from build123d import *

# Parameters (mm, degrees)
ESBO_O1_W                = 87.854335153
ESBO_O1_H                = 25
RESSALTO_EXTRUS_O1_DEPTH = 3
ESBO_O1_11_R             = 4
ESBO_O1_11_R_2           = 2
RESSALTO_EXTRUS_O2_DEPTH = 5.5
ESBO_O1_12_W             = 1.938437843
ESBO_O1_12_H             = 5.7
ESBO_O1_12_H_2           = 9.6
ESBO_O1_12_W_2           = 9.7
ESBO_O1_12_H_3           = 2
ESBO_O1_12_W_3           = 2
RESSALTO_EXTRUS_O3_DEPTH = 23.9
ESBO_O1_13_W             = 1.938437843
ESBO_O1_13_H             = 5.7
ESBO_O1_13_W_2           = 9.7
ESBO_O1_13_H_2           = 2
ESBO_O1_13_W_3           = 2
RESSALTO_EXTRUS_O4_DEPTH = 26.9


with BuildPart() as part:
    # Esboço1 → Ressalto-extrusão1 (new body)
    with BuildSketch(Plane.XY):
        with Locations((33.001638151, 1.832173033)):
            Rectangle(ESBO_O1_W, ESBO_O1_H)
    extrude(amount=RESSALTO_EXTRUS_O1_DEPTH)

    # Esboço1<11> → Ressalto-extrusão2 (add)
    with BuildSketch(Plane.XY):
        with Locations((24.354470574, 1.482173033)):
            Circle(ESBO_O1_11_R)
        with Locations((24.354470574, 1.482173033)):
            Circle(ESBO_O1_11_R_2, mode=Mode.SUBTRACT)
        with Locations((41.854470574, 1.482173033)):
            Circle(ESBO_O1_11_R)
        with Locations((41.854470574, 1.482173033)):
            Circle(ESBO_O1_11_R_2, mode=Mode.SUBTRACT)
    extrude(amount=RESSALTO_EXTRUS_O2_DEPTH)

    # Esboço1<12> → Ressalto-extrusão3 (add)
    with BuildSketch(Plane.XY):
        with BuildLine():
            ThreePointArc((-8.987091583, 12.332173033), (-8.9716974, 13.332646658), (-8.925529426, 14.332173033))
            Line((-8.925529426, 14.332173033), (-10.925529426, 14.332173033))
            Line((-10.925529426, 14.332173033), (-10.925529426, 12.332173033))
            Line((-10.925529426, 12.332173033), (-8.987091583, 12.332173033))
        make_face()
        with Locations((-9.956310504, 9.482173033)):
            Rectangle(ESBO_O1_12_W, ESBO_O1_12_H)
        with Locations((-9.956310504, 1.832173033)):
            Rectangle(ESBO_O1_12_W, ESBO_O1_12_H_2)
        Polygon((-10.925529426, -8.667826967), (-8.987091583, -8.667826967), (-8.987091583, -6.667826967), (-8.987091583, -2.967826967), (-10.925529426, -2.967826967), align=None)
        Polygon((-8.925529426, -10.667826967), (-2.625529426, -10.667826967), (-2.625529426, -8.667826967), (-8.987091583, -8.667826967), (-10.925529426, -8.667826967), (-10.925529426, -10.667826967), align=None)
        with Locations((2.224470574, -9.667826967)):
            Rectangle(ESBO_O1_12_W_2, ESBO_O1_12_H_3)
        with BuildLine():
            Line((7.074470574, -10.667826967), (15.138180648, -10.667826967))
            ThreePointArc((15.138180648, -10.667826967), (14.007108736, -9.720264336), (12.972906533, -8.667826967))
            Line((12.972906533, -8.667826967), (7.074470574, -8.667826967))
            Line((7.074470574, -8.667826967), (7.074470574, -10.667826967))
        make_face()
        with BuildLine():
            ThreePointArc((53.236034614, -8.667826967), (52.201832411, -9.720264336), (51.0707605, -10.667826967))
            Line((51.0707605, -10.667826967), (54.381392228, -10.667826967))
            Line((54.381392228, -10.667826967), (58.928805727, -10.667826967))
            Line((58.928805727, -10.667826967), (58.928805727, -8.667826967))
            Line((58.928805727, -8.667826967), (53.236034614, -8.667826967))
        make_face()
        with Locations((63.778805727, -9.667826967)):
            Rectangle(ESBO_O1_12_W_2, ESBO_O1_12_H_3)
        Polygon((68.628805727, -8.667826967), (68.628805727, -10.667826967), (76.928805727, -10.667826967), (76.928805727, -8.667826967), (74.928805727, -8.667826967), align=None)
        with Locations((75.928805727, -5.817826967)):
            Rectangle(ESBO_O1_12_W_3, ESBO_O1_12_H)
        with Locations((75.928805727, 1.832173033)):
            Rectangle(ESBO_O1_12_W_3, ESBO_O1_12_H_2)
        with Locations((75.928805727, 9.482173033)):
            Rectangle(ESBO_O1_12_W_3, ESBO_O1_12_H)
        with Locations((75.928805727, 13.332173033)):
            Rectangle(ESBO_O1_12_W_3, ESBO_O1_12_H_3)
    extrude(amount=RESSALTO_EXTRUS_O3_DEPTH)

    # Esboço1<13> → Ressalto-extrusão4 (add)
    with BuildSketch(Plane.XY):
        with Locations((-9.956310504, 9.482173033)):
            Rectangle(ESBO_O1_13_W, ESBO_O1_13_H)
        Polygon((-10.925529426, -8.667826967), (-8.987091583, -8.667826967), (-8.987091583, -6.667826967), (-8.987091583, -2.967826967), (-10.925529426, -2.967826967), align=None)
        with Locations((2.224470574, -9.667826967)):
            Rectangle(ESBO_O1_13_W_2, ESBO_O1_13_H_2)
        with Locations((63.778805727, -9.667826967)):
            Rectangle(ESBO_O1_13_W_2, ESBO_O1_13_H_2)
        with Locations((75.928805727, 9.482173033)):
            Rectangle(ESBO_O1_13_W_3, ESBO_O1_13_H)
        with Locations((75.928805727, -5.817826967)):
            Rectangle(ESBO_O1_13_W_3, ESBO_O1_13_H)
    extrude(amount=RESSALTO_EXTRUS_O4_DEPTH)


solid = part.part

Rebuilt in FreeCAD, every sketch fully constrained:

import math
import FreeCAD as App
import Part
import Sketcher
from FreeCAD import Vector

doc = App.newDocument("Part")
body = doc.addObject("PartDesign::Body", "Body")

sketch1 = body.newObject("Sketcher::SketchObject", "Sketch")
sketch1.AttachmentSupport = (doc.getObject("XY_Plane"), [""])
sketch1.MapMode = "FlatFace"
sketch1.addGeometry(Part.LineSegment(Vector(-11, 14, 0), Vector(-11, -11, 0)), False)
sketch1.addGeometry(Part.LineSegment(Vector(-11, -11, 0), Vector(77, -11, 0)), False)
sketch1.addGeometry(Part.LineSegment(Vector(77, -11, 0), Vector(77, 14, 0)), False)
sketch1.addGeometry(Part.LineSegment(Vector(77, 14, 0), Vector(-11, 14, 0)), False)
sketch1.addConstraint(Sketcher.Constraint("Coincident", 0, 2, 1, 1))
sketch1.addConstraint(Sketcher.Constraint("Coincident", 1, 2, 2, 1))
sketch1.addConstraint(Sketcher.Constraint("Coincident", 2, 2, 3, 1))
sketch1.addConstraint(Sketcher.Constraint("Coincident", 3, 2, 0, 1))
sketch1.addConstraint(Sketcher.Constraint("Vertical", 0))
sketch1.addConstraint(Sketcher.Constraint("Horizontal", 1))
sketch1.addConstraint(Sketcher.Constraint("Vertical", 2))
sketch1.addConstraint(Sketcher.Constraint("Horizontal", 3))
sketch1.addConstraint(Sketcher.Constraint("DistanceY", 0, 2, 0, 1, 25.0))
sketch1.addConstraint(Sketcher.Constraint("DistanceX", 1, 1, 1, 2, 87.854335))
sketch1.addConstraint(Sketcher.Constraint("DistanceX", 0, 2, -1, 1, 10.925529))
sketch1.addConstraint(Sketcher.Constraint("DistanceY", 0, 2, -1, 1, 10.667827))
pad1 = body.newObject("PartDesign::Pad", "Pad")
pad1.Profile = sketch1
pad1.Length = 3

sketch2 = body.newObject("Sketcher::SketchObject", "Sketch001")
sketch2.AttachmentSupport = (doc.getObject("XY_Plane"), [""])
sketch2.MapMode = "FlatFace"
sketch2.addGeometry(Part.Circle(Vector(24.4, 1.5, 0), Vector(0, 0, 1), 4), False)
sketch2.addGeometry(Part.Circle(Vector(24.4, 1.5, 0), Vector(0, 0, 1), 2), False)
sketch2.addGeometry(Part.Circle(Vector(41.9, 1.5, 0), Vector(0, 0, 1), 4), False)
sketch2.addGeometry(Part.Circle(Vector(41.9, 1.5, 0), Vector(0, 0, 1), 2), False)
sketch2.addConstraint(Sketcher.Constraint("Coincident", 1, 3, 0, 3))
sketch2.addConstraint(Sketcher.Constraint("Coincident", 3, 3, 2, 3))
sketch2.addConstraint(Sketcher.Constraint("Equal", 0, 2))
sketch2.addConstraint(Sketcher.Constraint("Equal", 1, 3))
sketch2.addConstraint(Sketcher.Constraint("Horizontal", 1, 3, 2, 3))
sketch2.addConstraint(Sketcher.Constraint("Diameter", 0, 8.0))
sketch2.addConstraint(Sketcher.Constraint("Diameter", 1, 4.0))
sketch2.addConstraint(Sketcher.Constraint("DistanceX", 0, 3, 2, 3, 17.5))
sketch2.addConstraint(Sketcher.Constraint("DistanceX", -1, 1, 0, 3, 24.354471))
sketch2.addConstraint(Sketcher.Constraint("DistanceY", -1, 1, 0, 3, 1.482173))
pad2 = body.newObject("PartDesign::Pad", "Pad001")
pad2.Profile = sketch2
pad2.Length = 5.5

sketch3 = body.newObject("Sketcher::SketchObject", "Sketch002")
sketch3.AttachmentSupport = (doc.getObject("XY_Plane"), [""])
sketch3.MapMode = "FlatFace"
sketch3.addGeometry(Part.ArcOfCircle(Part.Circle(Vector(23.5, 12.3, 0), Vector(0, 0, 1), 32.5), math.radians(176.47), math.radians(180)), False)
sketch3.addGeometry(Part.LineSegment(Vector(-8.9, 14.3, 0), Vector(-10.9, 14.3, 0)), False)
sketch3.addGeometry(Part.LineSegment(Vector(-10.9, 14.3, 0), Vector(-10.9, 12.3, 0)), False)
sketch3.addGeometry(Part.LineSegment(Vector(-10.9, 12.3, 0), Vector(-10.9, -3, 0)), False)
sketch3.addGeometry(Part.LineSegment(Vector(-10.9, -3, 0), Vector(-10.9, -10.7, 0)), False)
sketch3.addGeometry(Part.LineSegment(Vector(-10.9, -10.7, 0), Vector(15.1, -10.7, 0)), False)
sketch3.addGeometry(Part.ArcOfCircle(Part.Circle(Vector(24.4, 1.5, 0), Vector(0, 0, 1), 15.2), math.radians(-138.27), math.radians(-127.18)), False)
sketch3.addGeometry(Part.LineSegment(Vector(13, -8.7, 0), Vector(-9, -8.7, 0)), False)
sketch3.addGeometry(Part.LineSegment(Vector(-9, -8.7, 0), Vector(-9, -3, 0)), False)
sketch3.addGeometry(Part.LineSegment(Vector(-9, -3, 0), Vector(-9, 12.3, 0)), False)
sketch3.addGeometry(Part.ArcOfCircle(Part.Circle(Vector(41.9, 1.5, 0), Vector(0, 0, 1), 15.3), math.radians(-52.82), math.radians(-41.73)), False)
sketch3.addGeometry(Part.LineSegment(Vector(51.1, -10.7, 0), Vector(76.9, -10.7, 0)), False)
sketch3.addGeometry(Part.LineSegment(Vector(76.9, -10.7, 0), Vector(76.9, 14.3, 0)), False)
sketch3.addGeometry(Part.LineSegment(Vector(76.9, 14.3, 0), Vector(74.9, 14.3, 0)), False)
sketch3.addGeometry(Part.LineSegment(Vector(74.9, 14.3, 0), Vector(74.9, -8.7, 0)), False)
sketch3.addGeometry(Part.LineSegment(Vector(74.9, -8.7, 0), Vector(53.2, -8.7, 0)), False)
sketch3.addConstraint(Sketcher.Constraint("Coincident", 0, 1, 1, 1))
sketch3.addConstraint(Sketcher.Constraint("Coincident", 1, 2, 2, 1))
sketch3.addConstraint(Sketcher.Constraint("Coincident", 2, 2, 3, 1))
sketch3.addConstraint(Sketcher.Constraint("Coincident", 3, 2, 4, 1))
sketch3.addConstraint(Sketcher.Constraint("Coincident", 4, 2, 5, 1))
sketch3.addConstraint(Sketcher.Constraint("Coincident", 5, 2, 6, 2))
sketch3.addConstraint(Sketcher.Constraint("Coincident", 6, 1, 7, 1))
sketch3.addConstraint(Sketcher.Constraint("Coincident", 7, 2, 8, 1))
sketch3.addConstraint(Sketcher.Constraint("Coincident", 8, 2, 9, 1))
sketch3.addConstraint(Sketcher.Constraint("Tangent", 9, 2, 0, 2))
sketch3.addConstraint(Sketcher.Constraint("Coincident", 10, 1, 11, 1))
sketch3.addConstraint(Sketcher.Constraint("Coincident", 11, 2, 12, 1))
sketch3.addConstraint(Sketcher.Constraint("Coincident", 12, 2, 13, 1))
sketch3.addConstraint(Sketcher.Constraint("Coincident", 13, 2, 14, 1))
sketch3.addConstraint(Sketcher.Constraint("Coincident", 14, 2, 15, 1))
sketch3.addConstraint(Sketcher.Constraint("Coincident", 15, 2, 10, 2))
sketch3.addConstraint(Sketcher.Constraint("Horizontal", 1))
sketch3.addConstraint(Sketcher.Constraint("Vertical", 2))
sketch3.addConstraint(Sketcher.Constraint("Vertical", 3))
sketch3.addConstraint(Sketcher.Constraint("Vertical", 4))
sketch3.addConstraint(Sketcher.Constraint("Horizontal", 5))
sketch3.addConstraint(Sketcher.Constraint("Horizontal", 7))
sketch3.addConstraint(Sketcher.Constraint("Vertical", 8))
sketch3.addConstraint(Sketcher.Constraint("Vertical", 9))
sketch3.addConstraint(Sketcher.Constraint("Horizontal", 11))
sketch3.addConstraint(Sketcher.Constraint("Vertical", 12))
sketch3.addConstraint(Sketcher.Constraint("Horizontal", 13))
sketch3.addConstraint(Sketcher.Constraint("Vertical", 14))
sketch3.addConstraint(Sketcher.Constraint("Horizontal", 15))
sketch3.addConstraint(Sketcher.Constraint("Equal", 6, 10))
sketch3.addConstraint(Sketcher.Constraint("Horizontal", 6, 3, 10, 3))
sketch3.addConstraint(Sketcher.Constraint("Horizontal", 0, 3, 2, 2))
sketch3.addConstraint(Sketcher.Constraint("Horizontal", 3, 2, 8, 2))
sketch3.addConstraint(Sketcher.Constraint("Horizontal", 5, 2, 10, 1))
sketch3.addConstraint(Sketcher.Constraint("Horizontal", 1, 2, 12, 2))
sketch3.addConstraint(Sketcher.Constraint("Horizontal", 7, 2, 14, 2))
sketch3.addConstraint(Sketcher.Constraint("Equal", 1, 13))
sketch3.addConstraint(Sketcher.Constraint("Equal", 13, 2))
sketch3.addConstraint(Sketcher.Constraint("DistanceX", 1, 2, 1, 1, 2.0))
sketch3.addConstraint(Sketcher.Constraint("DistanceY", 12, 1, 12, 2, 25.0))
sketch3.addConstraint(Sketcher.Constraint("DistanceY", 14, 2, 14, 1, 23.0))
sketch3.addConstraint(Sketcher.Constraint("Radius", 6, 15.25))
sketch3.addConstraint(Sketcher.Constraint("DistanceY", 3, 2, 3, 1, 15.3))
sketch3.addConstraint(Sketcher.Constraint("DistanceX", 7, 2, 7, 1, 21.959998))
sketch3.addConstraint(Sketcher.Constraint("DistanceX", 6, 3, 10, 3, 17.5))
sketch3.addConstraint(Sketcher.Constraint("Radius", 0, 32.518272))
sketch3.addConstraint(Sketcher.Constraint("DistanceY", 6, 3, 0, 3, 10.85))
sketch3.addConstraint(Sketcher.Constraint("DistanceX", 15, 2, 15, 1, 21.692771))
sketch3.addConstraint(Sketcher.Constraint("DistanceX", -1, 1, 0, 3, 23.53118))
sketch3.addConstraint(Sketcher.Constraint("DistanceY", -1, 1, 0, 3, 12.332173))
pad3 = body.newObject("PartDesign::Pad", "Pad002")
pad3.Profile = sketch3
pad3.Length = 23.9

sketch4 = body.newObject("Sketcher::SketchObject", "Sketch003")
sketch4.AttachmentSupport = (doc.getObject("XY_Plane"), [""])
sketch4.MapMode = "FlatFace"
sketch4.addGeometry(Part.LineSegment(Vector(-10.9, 12.3, 0), Vector(-10.9, 6.6, 0)), False)
sketch4.addGeometry(Part.LineSegment(Vector(-10.9, 6.6, 0), Vector(-9, 6.6, 0)), False)
sketch4.addGeometry(Part.LineSegment(Vector(-9, 6.6, 0), Vector(-9, 12.3, 0)), False)
sketch4.addGeometry(Part.LineSegment(Vector(-9, 12.3, 0), Vector(-10.9, 12.3, 0)), False)
sketch4.addGeometry(Part.LineSegment(Vector(-10.9, -8.7, 0), Vector(-9, -8.7, 0)), False)
sketch4.addGeometry(Part.LineSegment(Vector(-9, -8.7, 0), Vector(-9, -3, 0)), False)
sketch4.addGeometry(Part.LineSegment(Vector(-9, -3, 0), Vector(-10.9, -3, 0)), False)
sketch4.addGeometry(Part.LineSegment(Vector(-10.9, -3, 0), Vector(-10.9, -8.7, 0)), False)
sketch4.addGeometry(Part.LineSegment(Vector(-2.6, -8.7, 0), Vector(-2.6, -10.7, 0)), False)
sketch4.addGeometry(Part.LineSegment(Vector(-2.6, -10.7, 0), Vector(7.1, -10.7, 0)), False)
sketch4.addGeometry(Part.LineSegment(Vector(7.1, -10.7, 0), Vector(7.1, -8.7, 0)), False)
sketch4.addGeometry(Part.LineSegment(Vector(7.1, -8.7, 0), Vector(-2.6, -8.7, 0)), False)
sketch4.addGeometry(Part.LineSegment(Vector(58.9, -8.7, 0), Vector(58.9, -10.7, 0)), False)
sketch4.addGeometry(Part.LineSegment(Vector(58.9, -10.7, 0), Vector(68.6, -10.7, 0)), False)
sketch4.addGeometry(Part.LineSegment(Vector(68.6, -10.7, 0), Vector(68.6, -8.7, 0)), False)
sketch4.addGeometry(Part.LineSegment(Vector(68.6, -8.7, 0), Vector(58.9, -8.7, 0)), False)
sketch4.addGeometry(Part.LineSegment(Vector(74.9, 12.3, 0), Vector(74.9, 6.6, 0)), False)
sketch4.addGeometry(Part.LineSegment(Vector(74.9, 6.6, 0), Vector(76.9, 6.6, 0)), False)
sketch4.addGeometry(Part.LineSegment(Vector(76.9, 6.6, 0), Vector(76.9, 12.3, 0)), False)
sketch4.addGeometry(Part.LineSegment(Vector(76.9, 12.3, 0), Vector(74.9, 12.3, 0)), False)
sketch4.addGeometry(Part.LineSegment(Vector(74.9, -3, 0), Vector(74.9, -8.7, 0)), False)
sketch4.addGeometry(Part.LineSegment(Vector(74.9, -8.7, 0), Vector(76.9, -8.7, 0)), False)
sketch4.addGeometry(Part.LineSegment(Vector(76.9, -8.7, 0), Vector(76.9, -3, 0)), False)
sketch4.addGeometry(Part.LineSegment(Vector(76.9, -3, 0), Vector(74.9, -3, 0)), False)
sketch4.addConstraint(Sketcher.Constraint("Coincident", 0, 2, 1, 1))
sketch4.addConstraint(Sketcher.Constraint("Coincident", 1, 2, 2, 1))
sketch4.addConstraint(Sketcher.Constraint("Coincident", 2, 2, 3, 1))
sketch4.addConstraint(Sketcher.Constraint("Coincident", 3, 2, 0, 1))
sketch4.addConstraint(Sketcher.Constraint("Coincident", 4, 2, 5, 1))
sketch4.addConstraint(Sketcher.Constraint("Coincident", 5, 2, 6, 1))
sketch4.addConstraint(Sketcher.Constraint("Coincident", 6, 2, 7, 1))
sketch4.addConstraint(Sketcher.Constraint("Coincident", 7, 2, 4, 1))
sketch4.addConstraint(Sketcher.Constraint("Coincident", 8, 2, 9, 1))
sketch4.addConstraint(Sketcher.Constraint("Coincident", 9, 2, 10, 1))
sketch4.addConstraint(Sketcher.Constraint("Coincident", 10, 2, 11, 1))
sketch4.addConstraint(Sketcher.Constraint("Coincident", 11, 2, 8, 1))
sketch4.addConstraint(Sketcher.Constraint("Coincident", 12, 2, 13, 1))
sketch4.addConstraint(Sketcher.Constraint("Coincident", 13, 2, 14, 1))
sketch4.addConstraint(Sketcher.Constraint("Coincident", 14, 2, 15, 1))
sketch4.addConstraint(Sketcher.Constraint("Coincident", 15, 2, 12, 1))
sketch4.addConstraint(Sketcher.Constraint("Coincident", 16, 2, 17, 1))
sketch4.addConstraint(Sketcher.Constraint("Coincident", 17, 2, 18, 1))
sketch4.addConstraint(Sketcher.Constraint("Coincident", 18, 2, 19, 1))
sketch4.addConstraint(Sketcher.Constraint("Coincident", 19, 2, 16, 1))
sketch4.addConstraint(Sketcher.Constraint("Coincident", 20, 2, 21, 1))
sketch4.addConstraint(Sketcher.Constraint("Coincident", 21, 2, 22, 1))
sketch4.addConstraint(Sketcher.Constraint("Coincident", 22, 2, 23, 1))
sketch4.addConstraint(Sketcher.Constraint("Coincident", 23, 2, 20, 1))
sketch4.addConstraint(Sketcher.Constraint("Vertical", 0))
sketch4.addConstraint(Sketcher.Constraint("Horizontal", 1))
sketch4.addConstraint(Sketcher.Constraint("Vertical", 2))
sketch4.addConstraint(Sketcher.Constraint("Horizontal", 3))
sketch4.addConstraint(Sketcher.Constraint("Horizontal", 4))
sketch4.addConstraint(Sketcher.Constraint("Vertical", 5))
sketch4.addConstraint(Sketcher.Constraint("Horizontal", 6))
sketch4.addConstraint(Sketcher.Constraint("Vertical", 7))
sketch4.addConstraint(Sketcher.Constraint("Vertical", 8))
sketch4.addConstraint(Sketcher.Constraint("Horizontal", 9))
sketch4.addConstraint(Sketcher.Constraint("Vertical", 10))
sketch4.addConstraint(Sketcher.Constraint("Horizontal", 11))
sketch4.addConstraint(Sketcher.Constraint("Vertical", 12))
sketch4.addConstraint(Sketcher.Constraint("Horizontal", 13))
sketch4.addConstraint(Sketcher.Constraint("Vertical", 14))
sketch4.addConstraint(Sketcher.Constraint("Horizontal", 15))
sketch4.addConstraint(Sketcher.Constraint("Vertical", 16))
sketch4.addConstraint(Sketcher.Constraint("Horizontal", 17))
sketch4.addConstraint(Sketcher.Constraint("Vertical", 18))
sketch4.addConstraint(Sketcher.Constraint("Horizontal", 19))
sketch4.addConstraint(Sketcher.Constraint("Vertical", 20))
sketch4.addConstraint(Sketcher.Constraint("Horizontal", 21))
sketch4.addConstraint(Sketcher.Constraint("Vertical", 22))
sketch4.addConstraint(Sketcher.Constraint("Horizontal", 23))
sketch4.addConstraint(Sketcher.Constraint("Horizontal", 7, 2, 10, 2))
sketch4.addConstraint(Sketcher.Constraint("Horizontal", 9, 2, 12, 2))
sketch4.addConstraint(Sketcher.Constraint("Horizontal", 11, 2, 14, 2))
sketch4.addConstraint(Sketcher.Constraint("Horizontal", 1, 2, 16, 2))
sketch4.addConstraint(Sketcher.Constraint("Horizontal", 3, 2, 18, 2))
sketch4.addConstraint(Sketcher.Constraint("Horizontal", 15, 2, 20, 2))
sketch4.addConstraint(Sketcher.Constraint("Horizontal", 6, 2, 22, 2))
sketch4.addConstraint(Sketcher.Constraint("Vertical", 2, 2, 4, 2))
sketch4.addConstraint(Sketcher.Constraint("Vertical", 3, 2, 6, 2))
sketch4.addConstraint(Sketcher.Constraint("Vertical", 19, 2, 20, 2))
sketch4.addConstraint(Sketcher.Constraint("Vertical", 18, 2, 21, 2))
sketch4.addConstraint(Sketcher.Constraint("Equal", 11, 13))
sketch4.addConstraint(Sketcher.Constraint("Equal", 2, 5))
sketch4.addConstraint(Sketcher.Constraint("Equal", 23, 8))
sketch4.addConstraint(Sketcher.Constraint("DistanceX", 17, 1, 17, 2, 2.0))
sketch4.addConstraint(Sketcher.Constraint("DistanceX", 9, 1, 9, 2, 9.7))
sketch4.addConstraint(Sketcher.Constraint("DistanceY", 0, 2, 0, 1, 5.7))
sketch4.addConstraint(Sketcher.Constraint("DistanceY", 4, 2, 2, 2, 21.0))
sketch4.addConstraint(Sketcher.Constraint("DistanceX", 7, 2, 9, 2, 18.0))
sketch4.addConstraint(Sketcher.Constraint("DistanceX", 15, 2, 16, 2, 16.0))
sketch4.addConstraint(Sketcher.Constraint("DistanceX", 1, 1, 1, 2, 1.938438))
sketch4.addConstraint(Sketcher.Constraint("DistanceX", 0, 2, -1, 1, 10.925529))
sketch4.addConstraint(Sketcher.Constraint("DistanceY", -1, 1, 0, 2, 6.632173))
sketch4.addConstraint(Sketcher.Constraint("DistanceX", -1, 1, 12, 2, 58.928806))
pad4 = body.newObject("PartDesign::Pad", "Pad003")
pad4.Profile = sketch4
pad4.Length = 26.9

doc.recompute()
